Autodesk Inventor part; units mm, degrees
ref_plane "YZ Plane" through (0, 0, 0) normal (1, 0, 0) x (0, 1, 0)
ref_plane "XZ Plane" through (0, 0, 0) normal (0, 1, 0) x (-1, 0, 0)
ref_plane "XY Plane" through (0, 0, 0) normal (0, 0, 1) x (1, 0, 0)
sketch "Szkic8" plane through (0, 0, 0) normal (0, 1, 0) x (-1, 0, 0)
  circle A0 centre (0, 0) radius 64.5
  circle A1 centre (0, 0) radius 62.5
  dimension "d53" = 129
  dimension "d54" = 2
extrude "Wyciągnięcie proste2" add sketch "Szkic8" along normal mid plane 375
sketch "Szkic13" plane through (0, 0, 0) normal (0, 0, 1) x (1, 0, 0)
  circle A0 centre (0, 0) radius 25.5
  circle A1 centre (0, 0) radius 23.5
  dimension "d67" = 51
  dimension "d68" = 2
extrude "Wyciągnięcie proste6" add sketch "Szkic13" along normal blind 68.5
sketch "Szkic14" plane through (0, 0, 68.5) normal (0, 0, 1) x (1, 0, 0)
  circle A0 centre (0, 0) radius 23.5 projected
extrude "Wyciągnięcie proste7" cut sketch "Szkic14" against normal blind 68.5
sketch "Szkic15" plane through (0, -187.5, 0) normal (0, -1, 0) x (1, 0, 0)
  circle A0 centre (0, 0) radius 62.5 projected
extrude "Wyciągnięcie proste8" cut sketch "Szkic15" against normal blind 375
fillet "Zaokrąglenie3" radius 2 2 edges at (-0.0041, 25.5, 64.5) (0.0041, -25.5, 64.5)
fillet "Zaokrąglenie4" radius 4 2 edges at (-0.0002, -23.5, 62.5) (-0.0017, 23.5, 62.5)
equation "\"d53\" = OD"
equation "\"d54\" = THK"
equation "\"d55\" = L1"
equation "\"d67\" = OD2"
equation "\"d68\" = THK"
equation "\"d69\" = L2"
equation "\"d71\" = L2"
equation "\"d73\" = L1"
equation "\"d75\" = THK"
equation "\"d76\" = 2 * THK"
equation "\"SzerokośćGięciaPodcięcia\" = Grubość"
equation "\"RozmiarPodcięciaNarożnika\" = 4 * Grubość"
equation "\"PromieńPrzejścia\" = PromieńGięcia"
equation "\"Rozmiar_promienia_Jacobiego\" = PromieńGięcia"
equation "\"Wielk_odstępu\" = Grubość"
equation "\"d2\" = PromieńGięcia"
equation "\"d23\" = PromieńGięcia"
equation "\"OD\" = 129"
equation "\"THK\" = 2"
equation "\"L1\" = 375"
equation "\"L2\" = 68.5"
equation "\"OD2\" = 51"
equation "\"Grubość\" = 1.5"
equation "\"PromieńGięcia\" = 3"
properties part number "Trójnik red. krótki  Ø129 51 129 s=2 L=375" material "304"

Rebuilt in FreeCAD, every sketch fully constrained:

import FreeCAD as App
import Part
import Sketcher

V = App.Vector
Q = App.Units.Quantity


def edges_at(feature, points):
    """Names of the edges that pass closest to the given points."""
    edges = feature.Shape.Edges
    near = lambda p: min(range(len(edges)), key=lambda i: edges[i].distToShape(Part.Vertex(*p))[0])
    return sorted({f"Edge{near(p) + 1}" for p in points})

doc = App.newDocument("Part")
body = doc.addObject("PartDesign::Body", "Body")

# Sketch on XZ plane
sketch1 = body.newObject("Sketcher::SketchObject", "Sketch")
sketch1.AttachmentSupport = (doc.getObject("XZ_Plane"), [""])
sketch1.MapMode = "FlatFace"
sketch1.addGeometry([
    Part.Circle(V(0, 0, 0), V(0, 0, 1), 64),
    Part.Circle(V(0, 0, 0), V(0, 0, 1), 62),
], False)
sketch1.addConstraint([
    Sketcher.Constraint("Coincident", 0, 3, -1, 1),
    Sketcher.Constraint("Coincident", 1, 3, -1, 1),
    Sketcher.Constraint("Diameter", 0, Q("129 mm")),
    Sketcher.Constraint("Diameter", 1, Q("125 mm")),
])
pad1 = body.newObject("PartDesign::Pad", "Pad")
pad1.Profile = sketch1
pad1.Length = 375
pad1.Midplane = True

# Sketch on XY plane
sketch2 = body.newObject("Sketcher::SketchObject", "Sketch001")
sketch2.AttachmentSupport = (doc.getObject("XY_Plane"), [""])
sketch2.MapMode = "FlatFace"
sketch2.addGeometry([
    Part.Circle(V(0, 0, 0), V(0, 0, 1), 26),
    Part.Circle(V(0, 0, 0), V(0, 0, 1), 24),
], False)
sketch2.addConstraint([
    Sketcher.Constraint("Coincident", 0, 3, -1, 1),
    Sketcher.Constraint("Coincident", 1, 3, -1, 1),
    Sketcher.Constraint("Diameter", 0, Q("51 mm")),
    Sketcher.Constraint("Diameter", 1, Q("47 mm")),
])
pad2 = body.newObject("PartDesign::Pad", "Pad001")
pad2.Profile = sketch2
pad2.Length = 68.5

# Sketch on XY plane
sketch3 = body.newObject("Sketcher::SketchObject", "Sketch002")
sketch3.AttachmentSupport = (doc.getObject("XY_Plane"), [""])
sketch3.MapMode = "FlatFace"
sketch3.AttachmentOffset = App.Placement(V(0, 0, 68.5), App.Rotation())
sketch3.addGeometry(Part.Circle(V(0, 0, 0), V(0, 0, 1), 24), False)
sketch3.addConstraint([
    Sketcher.Constraint("Coincident", 0, 3, -1, 1),
    Sketcher.Constraint("Diameter", 0, Q("47 mm")),
])
pocket1 = body.newObject("PartDesign::Pocket", "Pocket")
pocket1.Profile = sketch3
pocket1.Length = 68.5

# Sketch on XZ plane
sketch4 = body.newObject("Sketcher::SketchObject", "Sketch003")
sketch4.AttachmentSupport = (doc.getObject("XZ_Plane"), [""])
sketch4.MapMode = "FlatFace"
sketch4.AttachmentOffset = App.Placement(V(0, 0, 187.5), App.Rotation())
sketch4.addGeometry(Part.Circle(V(0, 0, 0), V(0, 0, 1), 62), False)
sketch4.addConstraint([
    Sketcher.Constraint("Coincident", 0, 3, -1, 1),
    Sketcher.Constraint("Diameter", 0, Q("125 mm")),
])
pocket2 = body.newObject("PartDesign::Pocket", "Pocket001")
pocket2.Profile = sketch4
pocket2.Length = 375
doc.recompute()

fillet = body.newObject("PartDesign::Fillet", "Fillet")
fillet.Base = (pocket2, edges_at(pocket2, [(-0.004, 25.5, 64.5), (0.004, -25.5, 64.5)]))
fillet.Radius = 2
doc.recompute()

fillet2 = body.newObject("PartDesign::Fillet", "Fillet001")
fillet2.Base = (fillet, edges_at(fillet, [(0, -23.5, 62.5), (-0.002, 23.5, 62.5)]))
fillet2.Radius = 4

doc.recompute()
